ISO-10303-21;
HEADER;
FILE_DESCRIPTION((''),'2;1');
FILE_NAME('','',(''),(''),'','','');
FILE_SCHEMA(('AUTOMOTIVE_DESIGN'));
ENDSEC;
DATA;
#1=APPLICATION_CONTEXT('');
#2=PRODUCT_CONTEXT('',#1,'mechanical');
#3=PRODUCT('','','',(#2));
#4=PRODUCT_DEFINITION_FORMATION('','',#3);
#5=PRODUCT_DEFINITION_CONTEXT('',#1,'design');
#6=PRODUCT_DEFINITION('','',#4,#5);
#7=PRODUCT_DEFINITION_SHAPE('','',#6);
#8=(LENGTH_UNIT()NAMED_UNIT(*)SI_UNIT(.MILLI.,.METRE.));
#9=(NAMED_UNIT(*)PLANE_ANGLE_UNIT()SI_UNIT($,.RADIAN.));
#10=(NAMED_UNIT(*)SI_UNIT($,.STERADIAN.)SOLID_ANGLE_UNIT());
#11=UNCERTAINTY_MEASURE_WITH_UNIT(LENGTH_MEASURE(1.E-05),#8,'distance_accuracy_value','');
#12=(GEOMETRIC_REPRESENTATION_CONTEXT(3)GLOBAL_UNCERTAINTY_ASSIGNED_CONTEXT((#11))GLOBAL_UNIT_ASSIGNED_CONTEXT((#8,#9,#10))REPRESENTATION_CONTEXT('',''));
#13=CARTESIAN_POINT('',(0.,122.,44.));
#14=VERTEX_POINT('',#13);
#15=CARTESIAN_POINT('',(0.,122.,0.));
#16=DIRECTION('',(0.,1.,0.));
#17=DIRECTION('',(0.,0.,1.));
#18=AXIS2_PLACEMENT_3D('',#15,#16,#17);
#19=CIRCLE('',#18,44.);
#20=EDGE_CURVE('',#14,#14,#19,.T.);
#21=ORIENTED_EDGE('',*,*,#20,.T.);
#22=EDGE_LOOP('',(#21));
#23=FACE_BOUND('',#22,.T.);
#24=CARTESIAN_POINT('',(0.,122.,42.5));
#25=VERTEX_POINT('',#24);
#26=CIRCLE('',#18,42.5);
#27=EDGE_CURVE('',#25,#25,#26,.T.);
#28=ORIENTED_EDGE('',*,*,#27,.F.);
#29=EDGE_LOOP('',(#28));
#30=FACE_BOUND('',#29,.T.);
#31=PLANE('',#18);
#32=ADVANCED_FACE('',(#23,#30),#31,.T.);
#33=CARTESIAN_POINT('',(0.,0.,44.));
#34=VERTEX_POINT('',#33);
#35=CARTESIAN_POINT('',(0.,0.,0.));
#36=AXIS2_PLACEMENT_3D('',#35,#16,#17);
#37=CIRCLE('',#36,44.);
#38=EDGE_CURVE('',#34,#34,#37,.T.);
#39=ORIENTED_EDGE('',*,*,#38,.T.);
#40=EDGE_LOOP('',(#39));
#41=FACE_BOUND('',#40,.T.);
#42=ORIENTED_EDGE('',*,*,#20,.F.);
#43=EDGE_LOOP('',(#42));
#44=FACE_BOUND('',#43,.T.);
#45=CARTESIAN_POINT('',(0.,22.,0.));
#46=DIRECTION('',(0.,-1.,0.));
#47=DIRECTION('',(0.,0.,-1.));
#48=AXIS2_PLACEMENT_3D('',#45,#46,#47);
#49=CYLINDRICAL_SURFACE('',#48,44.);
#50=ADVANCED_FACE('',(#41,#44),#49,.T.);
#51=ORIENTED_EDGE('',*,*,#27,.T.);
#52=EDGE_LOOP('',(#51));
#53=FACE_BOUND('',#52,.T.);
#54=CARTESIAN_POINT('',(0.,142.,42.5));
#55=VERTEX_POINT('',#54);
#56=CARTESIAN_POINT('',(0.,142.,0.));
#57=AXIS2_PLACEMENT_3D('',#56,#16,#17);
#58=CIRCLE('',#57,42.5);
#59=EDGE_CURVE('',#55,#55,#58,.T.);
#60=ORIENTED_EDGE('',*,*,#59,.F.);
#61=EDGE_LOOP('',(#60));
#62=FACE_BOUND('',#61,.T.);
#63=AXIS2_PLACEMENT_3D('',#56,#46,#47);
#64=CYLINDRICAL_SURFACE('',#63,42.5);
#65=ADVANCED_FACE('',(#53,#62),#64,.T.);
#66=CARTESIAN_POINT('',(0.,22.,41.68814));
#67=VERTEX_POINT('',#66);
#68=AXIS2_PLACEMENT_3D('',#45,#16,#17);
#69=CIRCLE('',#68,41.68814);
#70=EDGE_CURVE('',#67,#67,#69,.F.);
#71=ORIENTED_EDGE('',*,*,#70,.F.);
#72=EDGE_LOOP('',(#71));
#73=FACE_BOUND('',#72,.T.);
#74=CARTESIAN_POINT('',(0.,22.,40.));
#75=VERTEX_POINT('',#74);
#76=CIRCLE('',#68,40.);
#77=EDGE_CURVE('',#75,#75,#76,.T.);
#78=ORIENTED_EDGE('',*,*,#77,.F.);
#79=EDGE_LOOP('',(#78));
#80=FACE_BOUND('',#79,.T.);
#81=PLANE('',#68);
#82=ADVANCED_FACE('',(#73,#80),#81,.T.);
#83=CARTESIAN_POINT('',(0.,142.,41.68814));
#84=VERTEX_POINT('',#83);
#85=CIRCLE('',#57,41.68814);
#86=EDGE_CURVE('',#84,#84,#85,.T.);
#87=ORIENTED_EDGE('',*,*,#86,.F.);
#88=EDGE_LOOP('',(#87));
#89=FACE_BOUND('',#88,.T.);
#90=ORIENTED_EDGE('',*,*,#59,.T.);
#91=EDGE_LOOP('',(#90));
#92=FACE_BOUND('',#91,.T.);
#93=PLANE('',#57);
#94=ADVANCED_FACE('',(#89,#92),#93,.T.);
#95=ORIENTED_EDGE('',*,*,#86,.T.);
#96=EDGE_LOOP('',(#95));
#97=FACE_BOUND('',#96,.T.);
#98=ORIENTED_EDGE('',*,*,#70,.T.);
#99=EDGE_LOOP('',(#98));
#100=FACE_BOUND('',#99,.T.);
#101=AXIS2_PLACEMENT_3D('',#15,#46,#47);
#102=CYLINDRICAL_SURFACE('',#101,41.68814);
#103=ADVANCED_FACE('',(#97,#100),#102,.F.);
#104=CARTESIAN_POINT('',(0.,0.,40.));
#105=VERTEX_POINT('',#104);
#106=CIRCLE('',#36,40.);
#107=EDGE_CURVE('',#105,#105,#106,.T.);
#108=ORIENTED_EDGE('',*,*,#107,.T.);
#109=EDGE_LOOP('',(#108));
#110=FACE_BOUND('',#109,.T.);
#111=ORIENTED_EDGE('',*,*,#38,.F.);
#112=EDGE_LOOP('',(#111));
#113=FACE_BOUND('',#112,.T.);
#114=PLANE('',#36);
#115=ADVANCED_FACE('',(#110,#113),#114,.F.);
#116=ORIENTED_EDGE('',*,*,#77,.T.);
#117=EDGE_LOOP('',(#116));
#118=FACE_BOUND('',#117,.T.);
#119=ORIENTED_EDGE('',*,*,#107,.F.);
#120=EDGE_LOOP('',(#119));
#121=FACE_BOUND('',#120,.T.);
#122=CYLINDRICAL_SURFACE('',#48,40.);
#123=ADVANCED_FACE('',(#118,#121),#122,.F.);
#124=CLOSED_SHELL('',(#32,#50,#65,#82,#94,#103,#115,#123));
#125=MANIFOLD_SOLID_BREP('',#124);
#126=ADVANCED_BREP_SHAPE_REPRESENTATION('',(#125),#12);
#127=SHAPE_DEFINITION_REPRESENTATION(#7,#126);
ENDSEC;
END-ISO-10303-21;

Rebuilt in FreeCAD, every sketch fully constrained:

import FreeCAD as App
import Part
import Sketcher
Q = App.Units.Quantity

doc = App.newDocument("Part")
body = doc.addObject("PartDesign::Body", "Body")

# Sketch on XZ plane
sketch1 = doc.addObject("Sketcher::SketchObject", "Sketch")
body.addObject(sketch1)
sketch1.AttachmentSupport = (doc.XZ_Plane, [""])
sketch1.MapMode = "FlatFace"
sketch1.addGeometry([
    Part.Circle(App.Vector(0, 0, 0), App.Vector(0, 0, 1), 44),
    Part.Circle(App.Vector(0, 0, 0), App.Vector(0, 0, 1), 40),
], False)
sketch1.addConstraint([
    Sketcher.Constraint("Coincident", 0, 3, -1, 1),
    Sketcher.Constraint("Coincident", 1, 3, -1, 1),
    Sketcher.Constraint("Diameter", 0, Q("88 mm")),
    Sketcher.Constraint("Diameter", 1, Q("80 mm")),
])
pad1 = doc.addObject("PartDesign::Pad", "Pad")
body.addObject(pad1)
pad1.Profile = sketch1
pad1.Length = 22
pad1.Reversed = True

# Sketch on XZ plane
sketch2 = doc.addObject("Sketcher::SketchObject", "Sketch001")
body.addObject(sketch2)
sketch2.AttachmentSupport = (doc.XZ_Plane, [""])
sketch2.MapMode = "FlatFace"
sketch2.AttachmentOffset = App.Placement(App.Vector(0, 0, -22), App.Rotation())
sketch2.addGeometry([
    Part.Circle(App.Vector(0, 0, 0), App.Vector(0, 0, 1), 44),
    Part.Circle(App.Vector(0, 0, 0), App.Vector(0, 0, 1), 42),
], False)
sketch2.addConstraint([
    Sketcher.Constraint("Coincident", 0, 3, -1, 1),
    Sketcher.Constraint("Coincident", 1, 3, -1, 1),
    Sketcher.Constraint("Diameter", 0, Q("88 mm")),
    Sketcher.Constraint("Diameter", 1, Q("83.37628 mm")),
])
pad2 = doc.addObject("PartDesign::Pad", "Pad001")
body.addObject(pad2)
pad2.Profile = sketch2
pad2.Length = 100
pad2.Reversed = True

# Sketch on XZ plane
sketch3 = doc.addObject("Sketcher::SketchObject", "Sketch002")
body.addObject(sketch3)
sketch3.AttachmentSupport = (doc.XZ_Plane, [""])
sketch3.MapMode = "FlatFace"
sketch3.AttachmentOffset = App.Placement(App.Vector(0, 0, -122), App.Rotation())
sketch3.addGeometry([
    Part.Circle(App.Vector(0, 0, 0), App.Vector(0, 0, 1), 42),
    Part.Circle(App.Vector(0, 0, 0), App.Vector(0, 0, 1), 42),
], False)
sketch3.addConstraint([
    Sketcher.Constraint("Coincident", 0, 3, -1, 1),
    Sketcher.Constraint("Coincident", 1, 3, -1, 1),
    Sketcher.Constraint("Diameter", 0, Q("85 mm")),
    Sketcher.Constraint("Diameter", 1, Q("83.37628 mm")),
])
pad3 = doc.addObject("PartDesign::Pad", "Pad002")
body.addObject(pad3)
pad3.Profile = sketch3
pad3.Length = 20
pad3.Reversed = True

doc.recompute()
